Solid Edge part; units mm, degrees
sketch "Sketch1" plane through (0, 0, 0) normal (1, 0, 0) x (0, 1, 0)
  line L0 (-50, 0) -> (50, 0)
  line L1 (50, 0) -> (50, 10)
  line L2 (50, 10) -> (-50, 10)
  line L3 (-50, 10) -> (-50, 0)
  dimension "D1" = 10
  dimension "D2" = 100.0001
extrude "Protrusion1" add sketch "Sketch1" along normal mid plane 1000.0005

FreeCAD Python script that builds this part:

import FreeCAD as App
import Part
import Sketcher

V = App.Vector
Q = App.Units.Quantity

doc = App.newDocument("Part")
body = doc.addObject("PartDesign::Body", "Body")

# Sketch on YZ plane
sketch1 = doc.addObject("Sketcher::SketchObject", "Sketch")
body.addObject(sketch1)
sketch1.AttachmentSupport = (doc.YZ_Plane, [""])
sketch1.MapMode = "FlatFace"
sketch1.addGeometry([
    Part.LineSegment(V(-50, 10, 0), V(-50, 0, 0)),
    Part.LineSegment(V(-50, 0, 0), V(50, 0, 0)),
    Part.LineSegment(V(50, 0, 0), V(50, 10, 0)),
    Part.LineSegment(V(50, 10, 0), V(-50, 10, 0)),
], False)
sketch1.addConstraint([
    Sketcher.Constraint("Coincident", 0, 2, 1, 1),
    Sketcher.Constraint("Coincident", 1, 2, 2, 1),
    Sketcher.Constraint("Coincident", 2, 2, 3, 1),
    Sketcher.Constraint("Coincident", 3, 2, 0, 1),
    Sketcher.Constraint("Vertical", 0),
    Sketcher.Constraint("Horizontal", 1),
    Sketcher.Constraint("Vertical", 2),
    Sketcher.Constraint("Horizontal", 3),
    Sketcher.Constraint("Symmetric", 0, 2, 1, 2, -1, 1),
    Sketcher.Constraint("DistanceX", 0, 2, -1, 1, Q("1.9685 in")),
    Sketcher.Constraint("DistanceY", 0, 2, 0, 1, Q("0.3937 in")),
])
pad1 = doc.addObject("PartDesign::Pad", "Pad")
body.addObject(pad1)
pad1.Profile = sketch1
pad1.Length = Q("39.3700984 in")
pad1.Midplane = True

doc.recompute()
